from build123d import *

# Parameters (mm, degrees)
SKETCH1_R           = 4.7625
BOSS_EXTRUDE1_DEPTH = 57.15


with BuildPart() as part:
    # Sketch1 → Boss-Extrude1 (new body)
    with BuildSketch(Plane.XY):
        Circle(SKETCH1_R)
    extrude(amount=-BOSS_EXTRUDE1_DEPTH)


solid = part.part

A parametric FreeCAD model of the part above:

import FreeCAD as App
import Part
import Sketcher

V = App.Vector
Q = App.Units.Quantity

doc = App.newDocument("Part")
body = doc.addObject("PartDesign::Body", "Body")

# Sketch on XY plane
sketch1 = doc.addObject("Sketcher::SketchObject", "Sketch")
body.addObject(sketch1)
sketch1.AttachmentSupport = (doc.XY_Plane, [""])
sketch1.MapMode = "FlatFace"
sketch1.addGeometry(Part.Circle(V(0, 0, 0), V(0, 0, 1), 4.8), False)
sketch1.addConstraint([
    Sketcher.Constraint("Coincident", 0, 3, -1, 1),
    Sketcher.Constraint("Diameter", 0, Q("0.375 in")),
])
pad1 = doc.addObject("PartDesign::Pad", "Pad")
body.addObject(pad1)
pad1.Profile = sketch1
pad1.Length = Q("2.25 in")
pad1.Reversed = True

doc.recompute()
